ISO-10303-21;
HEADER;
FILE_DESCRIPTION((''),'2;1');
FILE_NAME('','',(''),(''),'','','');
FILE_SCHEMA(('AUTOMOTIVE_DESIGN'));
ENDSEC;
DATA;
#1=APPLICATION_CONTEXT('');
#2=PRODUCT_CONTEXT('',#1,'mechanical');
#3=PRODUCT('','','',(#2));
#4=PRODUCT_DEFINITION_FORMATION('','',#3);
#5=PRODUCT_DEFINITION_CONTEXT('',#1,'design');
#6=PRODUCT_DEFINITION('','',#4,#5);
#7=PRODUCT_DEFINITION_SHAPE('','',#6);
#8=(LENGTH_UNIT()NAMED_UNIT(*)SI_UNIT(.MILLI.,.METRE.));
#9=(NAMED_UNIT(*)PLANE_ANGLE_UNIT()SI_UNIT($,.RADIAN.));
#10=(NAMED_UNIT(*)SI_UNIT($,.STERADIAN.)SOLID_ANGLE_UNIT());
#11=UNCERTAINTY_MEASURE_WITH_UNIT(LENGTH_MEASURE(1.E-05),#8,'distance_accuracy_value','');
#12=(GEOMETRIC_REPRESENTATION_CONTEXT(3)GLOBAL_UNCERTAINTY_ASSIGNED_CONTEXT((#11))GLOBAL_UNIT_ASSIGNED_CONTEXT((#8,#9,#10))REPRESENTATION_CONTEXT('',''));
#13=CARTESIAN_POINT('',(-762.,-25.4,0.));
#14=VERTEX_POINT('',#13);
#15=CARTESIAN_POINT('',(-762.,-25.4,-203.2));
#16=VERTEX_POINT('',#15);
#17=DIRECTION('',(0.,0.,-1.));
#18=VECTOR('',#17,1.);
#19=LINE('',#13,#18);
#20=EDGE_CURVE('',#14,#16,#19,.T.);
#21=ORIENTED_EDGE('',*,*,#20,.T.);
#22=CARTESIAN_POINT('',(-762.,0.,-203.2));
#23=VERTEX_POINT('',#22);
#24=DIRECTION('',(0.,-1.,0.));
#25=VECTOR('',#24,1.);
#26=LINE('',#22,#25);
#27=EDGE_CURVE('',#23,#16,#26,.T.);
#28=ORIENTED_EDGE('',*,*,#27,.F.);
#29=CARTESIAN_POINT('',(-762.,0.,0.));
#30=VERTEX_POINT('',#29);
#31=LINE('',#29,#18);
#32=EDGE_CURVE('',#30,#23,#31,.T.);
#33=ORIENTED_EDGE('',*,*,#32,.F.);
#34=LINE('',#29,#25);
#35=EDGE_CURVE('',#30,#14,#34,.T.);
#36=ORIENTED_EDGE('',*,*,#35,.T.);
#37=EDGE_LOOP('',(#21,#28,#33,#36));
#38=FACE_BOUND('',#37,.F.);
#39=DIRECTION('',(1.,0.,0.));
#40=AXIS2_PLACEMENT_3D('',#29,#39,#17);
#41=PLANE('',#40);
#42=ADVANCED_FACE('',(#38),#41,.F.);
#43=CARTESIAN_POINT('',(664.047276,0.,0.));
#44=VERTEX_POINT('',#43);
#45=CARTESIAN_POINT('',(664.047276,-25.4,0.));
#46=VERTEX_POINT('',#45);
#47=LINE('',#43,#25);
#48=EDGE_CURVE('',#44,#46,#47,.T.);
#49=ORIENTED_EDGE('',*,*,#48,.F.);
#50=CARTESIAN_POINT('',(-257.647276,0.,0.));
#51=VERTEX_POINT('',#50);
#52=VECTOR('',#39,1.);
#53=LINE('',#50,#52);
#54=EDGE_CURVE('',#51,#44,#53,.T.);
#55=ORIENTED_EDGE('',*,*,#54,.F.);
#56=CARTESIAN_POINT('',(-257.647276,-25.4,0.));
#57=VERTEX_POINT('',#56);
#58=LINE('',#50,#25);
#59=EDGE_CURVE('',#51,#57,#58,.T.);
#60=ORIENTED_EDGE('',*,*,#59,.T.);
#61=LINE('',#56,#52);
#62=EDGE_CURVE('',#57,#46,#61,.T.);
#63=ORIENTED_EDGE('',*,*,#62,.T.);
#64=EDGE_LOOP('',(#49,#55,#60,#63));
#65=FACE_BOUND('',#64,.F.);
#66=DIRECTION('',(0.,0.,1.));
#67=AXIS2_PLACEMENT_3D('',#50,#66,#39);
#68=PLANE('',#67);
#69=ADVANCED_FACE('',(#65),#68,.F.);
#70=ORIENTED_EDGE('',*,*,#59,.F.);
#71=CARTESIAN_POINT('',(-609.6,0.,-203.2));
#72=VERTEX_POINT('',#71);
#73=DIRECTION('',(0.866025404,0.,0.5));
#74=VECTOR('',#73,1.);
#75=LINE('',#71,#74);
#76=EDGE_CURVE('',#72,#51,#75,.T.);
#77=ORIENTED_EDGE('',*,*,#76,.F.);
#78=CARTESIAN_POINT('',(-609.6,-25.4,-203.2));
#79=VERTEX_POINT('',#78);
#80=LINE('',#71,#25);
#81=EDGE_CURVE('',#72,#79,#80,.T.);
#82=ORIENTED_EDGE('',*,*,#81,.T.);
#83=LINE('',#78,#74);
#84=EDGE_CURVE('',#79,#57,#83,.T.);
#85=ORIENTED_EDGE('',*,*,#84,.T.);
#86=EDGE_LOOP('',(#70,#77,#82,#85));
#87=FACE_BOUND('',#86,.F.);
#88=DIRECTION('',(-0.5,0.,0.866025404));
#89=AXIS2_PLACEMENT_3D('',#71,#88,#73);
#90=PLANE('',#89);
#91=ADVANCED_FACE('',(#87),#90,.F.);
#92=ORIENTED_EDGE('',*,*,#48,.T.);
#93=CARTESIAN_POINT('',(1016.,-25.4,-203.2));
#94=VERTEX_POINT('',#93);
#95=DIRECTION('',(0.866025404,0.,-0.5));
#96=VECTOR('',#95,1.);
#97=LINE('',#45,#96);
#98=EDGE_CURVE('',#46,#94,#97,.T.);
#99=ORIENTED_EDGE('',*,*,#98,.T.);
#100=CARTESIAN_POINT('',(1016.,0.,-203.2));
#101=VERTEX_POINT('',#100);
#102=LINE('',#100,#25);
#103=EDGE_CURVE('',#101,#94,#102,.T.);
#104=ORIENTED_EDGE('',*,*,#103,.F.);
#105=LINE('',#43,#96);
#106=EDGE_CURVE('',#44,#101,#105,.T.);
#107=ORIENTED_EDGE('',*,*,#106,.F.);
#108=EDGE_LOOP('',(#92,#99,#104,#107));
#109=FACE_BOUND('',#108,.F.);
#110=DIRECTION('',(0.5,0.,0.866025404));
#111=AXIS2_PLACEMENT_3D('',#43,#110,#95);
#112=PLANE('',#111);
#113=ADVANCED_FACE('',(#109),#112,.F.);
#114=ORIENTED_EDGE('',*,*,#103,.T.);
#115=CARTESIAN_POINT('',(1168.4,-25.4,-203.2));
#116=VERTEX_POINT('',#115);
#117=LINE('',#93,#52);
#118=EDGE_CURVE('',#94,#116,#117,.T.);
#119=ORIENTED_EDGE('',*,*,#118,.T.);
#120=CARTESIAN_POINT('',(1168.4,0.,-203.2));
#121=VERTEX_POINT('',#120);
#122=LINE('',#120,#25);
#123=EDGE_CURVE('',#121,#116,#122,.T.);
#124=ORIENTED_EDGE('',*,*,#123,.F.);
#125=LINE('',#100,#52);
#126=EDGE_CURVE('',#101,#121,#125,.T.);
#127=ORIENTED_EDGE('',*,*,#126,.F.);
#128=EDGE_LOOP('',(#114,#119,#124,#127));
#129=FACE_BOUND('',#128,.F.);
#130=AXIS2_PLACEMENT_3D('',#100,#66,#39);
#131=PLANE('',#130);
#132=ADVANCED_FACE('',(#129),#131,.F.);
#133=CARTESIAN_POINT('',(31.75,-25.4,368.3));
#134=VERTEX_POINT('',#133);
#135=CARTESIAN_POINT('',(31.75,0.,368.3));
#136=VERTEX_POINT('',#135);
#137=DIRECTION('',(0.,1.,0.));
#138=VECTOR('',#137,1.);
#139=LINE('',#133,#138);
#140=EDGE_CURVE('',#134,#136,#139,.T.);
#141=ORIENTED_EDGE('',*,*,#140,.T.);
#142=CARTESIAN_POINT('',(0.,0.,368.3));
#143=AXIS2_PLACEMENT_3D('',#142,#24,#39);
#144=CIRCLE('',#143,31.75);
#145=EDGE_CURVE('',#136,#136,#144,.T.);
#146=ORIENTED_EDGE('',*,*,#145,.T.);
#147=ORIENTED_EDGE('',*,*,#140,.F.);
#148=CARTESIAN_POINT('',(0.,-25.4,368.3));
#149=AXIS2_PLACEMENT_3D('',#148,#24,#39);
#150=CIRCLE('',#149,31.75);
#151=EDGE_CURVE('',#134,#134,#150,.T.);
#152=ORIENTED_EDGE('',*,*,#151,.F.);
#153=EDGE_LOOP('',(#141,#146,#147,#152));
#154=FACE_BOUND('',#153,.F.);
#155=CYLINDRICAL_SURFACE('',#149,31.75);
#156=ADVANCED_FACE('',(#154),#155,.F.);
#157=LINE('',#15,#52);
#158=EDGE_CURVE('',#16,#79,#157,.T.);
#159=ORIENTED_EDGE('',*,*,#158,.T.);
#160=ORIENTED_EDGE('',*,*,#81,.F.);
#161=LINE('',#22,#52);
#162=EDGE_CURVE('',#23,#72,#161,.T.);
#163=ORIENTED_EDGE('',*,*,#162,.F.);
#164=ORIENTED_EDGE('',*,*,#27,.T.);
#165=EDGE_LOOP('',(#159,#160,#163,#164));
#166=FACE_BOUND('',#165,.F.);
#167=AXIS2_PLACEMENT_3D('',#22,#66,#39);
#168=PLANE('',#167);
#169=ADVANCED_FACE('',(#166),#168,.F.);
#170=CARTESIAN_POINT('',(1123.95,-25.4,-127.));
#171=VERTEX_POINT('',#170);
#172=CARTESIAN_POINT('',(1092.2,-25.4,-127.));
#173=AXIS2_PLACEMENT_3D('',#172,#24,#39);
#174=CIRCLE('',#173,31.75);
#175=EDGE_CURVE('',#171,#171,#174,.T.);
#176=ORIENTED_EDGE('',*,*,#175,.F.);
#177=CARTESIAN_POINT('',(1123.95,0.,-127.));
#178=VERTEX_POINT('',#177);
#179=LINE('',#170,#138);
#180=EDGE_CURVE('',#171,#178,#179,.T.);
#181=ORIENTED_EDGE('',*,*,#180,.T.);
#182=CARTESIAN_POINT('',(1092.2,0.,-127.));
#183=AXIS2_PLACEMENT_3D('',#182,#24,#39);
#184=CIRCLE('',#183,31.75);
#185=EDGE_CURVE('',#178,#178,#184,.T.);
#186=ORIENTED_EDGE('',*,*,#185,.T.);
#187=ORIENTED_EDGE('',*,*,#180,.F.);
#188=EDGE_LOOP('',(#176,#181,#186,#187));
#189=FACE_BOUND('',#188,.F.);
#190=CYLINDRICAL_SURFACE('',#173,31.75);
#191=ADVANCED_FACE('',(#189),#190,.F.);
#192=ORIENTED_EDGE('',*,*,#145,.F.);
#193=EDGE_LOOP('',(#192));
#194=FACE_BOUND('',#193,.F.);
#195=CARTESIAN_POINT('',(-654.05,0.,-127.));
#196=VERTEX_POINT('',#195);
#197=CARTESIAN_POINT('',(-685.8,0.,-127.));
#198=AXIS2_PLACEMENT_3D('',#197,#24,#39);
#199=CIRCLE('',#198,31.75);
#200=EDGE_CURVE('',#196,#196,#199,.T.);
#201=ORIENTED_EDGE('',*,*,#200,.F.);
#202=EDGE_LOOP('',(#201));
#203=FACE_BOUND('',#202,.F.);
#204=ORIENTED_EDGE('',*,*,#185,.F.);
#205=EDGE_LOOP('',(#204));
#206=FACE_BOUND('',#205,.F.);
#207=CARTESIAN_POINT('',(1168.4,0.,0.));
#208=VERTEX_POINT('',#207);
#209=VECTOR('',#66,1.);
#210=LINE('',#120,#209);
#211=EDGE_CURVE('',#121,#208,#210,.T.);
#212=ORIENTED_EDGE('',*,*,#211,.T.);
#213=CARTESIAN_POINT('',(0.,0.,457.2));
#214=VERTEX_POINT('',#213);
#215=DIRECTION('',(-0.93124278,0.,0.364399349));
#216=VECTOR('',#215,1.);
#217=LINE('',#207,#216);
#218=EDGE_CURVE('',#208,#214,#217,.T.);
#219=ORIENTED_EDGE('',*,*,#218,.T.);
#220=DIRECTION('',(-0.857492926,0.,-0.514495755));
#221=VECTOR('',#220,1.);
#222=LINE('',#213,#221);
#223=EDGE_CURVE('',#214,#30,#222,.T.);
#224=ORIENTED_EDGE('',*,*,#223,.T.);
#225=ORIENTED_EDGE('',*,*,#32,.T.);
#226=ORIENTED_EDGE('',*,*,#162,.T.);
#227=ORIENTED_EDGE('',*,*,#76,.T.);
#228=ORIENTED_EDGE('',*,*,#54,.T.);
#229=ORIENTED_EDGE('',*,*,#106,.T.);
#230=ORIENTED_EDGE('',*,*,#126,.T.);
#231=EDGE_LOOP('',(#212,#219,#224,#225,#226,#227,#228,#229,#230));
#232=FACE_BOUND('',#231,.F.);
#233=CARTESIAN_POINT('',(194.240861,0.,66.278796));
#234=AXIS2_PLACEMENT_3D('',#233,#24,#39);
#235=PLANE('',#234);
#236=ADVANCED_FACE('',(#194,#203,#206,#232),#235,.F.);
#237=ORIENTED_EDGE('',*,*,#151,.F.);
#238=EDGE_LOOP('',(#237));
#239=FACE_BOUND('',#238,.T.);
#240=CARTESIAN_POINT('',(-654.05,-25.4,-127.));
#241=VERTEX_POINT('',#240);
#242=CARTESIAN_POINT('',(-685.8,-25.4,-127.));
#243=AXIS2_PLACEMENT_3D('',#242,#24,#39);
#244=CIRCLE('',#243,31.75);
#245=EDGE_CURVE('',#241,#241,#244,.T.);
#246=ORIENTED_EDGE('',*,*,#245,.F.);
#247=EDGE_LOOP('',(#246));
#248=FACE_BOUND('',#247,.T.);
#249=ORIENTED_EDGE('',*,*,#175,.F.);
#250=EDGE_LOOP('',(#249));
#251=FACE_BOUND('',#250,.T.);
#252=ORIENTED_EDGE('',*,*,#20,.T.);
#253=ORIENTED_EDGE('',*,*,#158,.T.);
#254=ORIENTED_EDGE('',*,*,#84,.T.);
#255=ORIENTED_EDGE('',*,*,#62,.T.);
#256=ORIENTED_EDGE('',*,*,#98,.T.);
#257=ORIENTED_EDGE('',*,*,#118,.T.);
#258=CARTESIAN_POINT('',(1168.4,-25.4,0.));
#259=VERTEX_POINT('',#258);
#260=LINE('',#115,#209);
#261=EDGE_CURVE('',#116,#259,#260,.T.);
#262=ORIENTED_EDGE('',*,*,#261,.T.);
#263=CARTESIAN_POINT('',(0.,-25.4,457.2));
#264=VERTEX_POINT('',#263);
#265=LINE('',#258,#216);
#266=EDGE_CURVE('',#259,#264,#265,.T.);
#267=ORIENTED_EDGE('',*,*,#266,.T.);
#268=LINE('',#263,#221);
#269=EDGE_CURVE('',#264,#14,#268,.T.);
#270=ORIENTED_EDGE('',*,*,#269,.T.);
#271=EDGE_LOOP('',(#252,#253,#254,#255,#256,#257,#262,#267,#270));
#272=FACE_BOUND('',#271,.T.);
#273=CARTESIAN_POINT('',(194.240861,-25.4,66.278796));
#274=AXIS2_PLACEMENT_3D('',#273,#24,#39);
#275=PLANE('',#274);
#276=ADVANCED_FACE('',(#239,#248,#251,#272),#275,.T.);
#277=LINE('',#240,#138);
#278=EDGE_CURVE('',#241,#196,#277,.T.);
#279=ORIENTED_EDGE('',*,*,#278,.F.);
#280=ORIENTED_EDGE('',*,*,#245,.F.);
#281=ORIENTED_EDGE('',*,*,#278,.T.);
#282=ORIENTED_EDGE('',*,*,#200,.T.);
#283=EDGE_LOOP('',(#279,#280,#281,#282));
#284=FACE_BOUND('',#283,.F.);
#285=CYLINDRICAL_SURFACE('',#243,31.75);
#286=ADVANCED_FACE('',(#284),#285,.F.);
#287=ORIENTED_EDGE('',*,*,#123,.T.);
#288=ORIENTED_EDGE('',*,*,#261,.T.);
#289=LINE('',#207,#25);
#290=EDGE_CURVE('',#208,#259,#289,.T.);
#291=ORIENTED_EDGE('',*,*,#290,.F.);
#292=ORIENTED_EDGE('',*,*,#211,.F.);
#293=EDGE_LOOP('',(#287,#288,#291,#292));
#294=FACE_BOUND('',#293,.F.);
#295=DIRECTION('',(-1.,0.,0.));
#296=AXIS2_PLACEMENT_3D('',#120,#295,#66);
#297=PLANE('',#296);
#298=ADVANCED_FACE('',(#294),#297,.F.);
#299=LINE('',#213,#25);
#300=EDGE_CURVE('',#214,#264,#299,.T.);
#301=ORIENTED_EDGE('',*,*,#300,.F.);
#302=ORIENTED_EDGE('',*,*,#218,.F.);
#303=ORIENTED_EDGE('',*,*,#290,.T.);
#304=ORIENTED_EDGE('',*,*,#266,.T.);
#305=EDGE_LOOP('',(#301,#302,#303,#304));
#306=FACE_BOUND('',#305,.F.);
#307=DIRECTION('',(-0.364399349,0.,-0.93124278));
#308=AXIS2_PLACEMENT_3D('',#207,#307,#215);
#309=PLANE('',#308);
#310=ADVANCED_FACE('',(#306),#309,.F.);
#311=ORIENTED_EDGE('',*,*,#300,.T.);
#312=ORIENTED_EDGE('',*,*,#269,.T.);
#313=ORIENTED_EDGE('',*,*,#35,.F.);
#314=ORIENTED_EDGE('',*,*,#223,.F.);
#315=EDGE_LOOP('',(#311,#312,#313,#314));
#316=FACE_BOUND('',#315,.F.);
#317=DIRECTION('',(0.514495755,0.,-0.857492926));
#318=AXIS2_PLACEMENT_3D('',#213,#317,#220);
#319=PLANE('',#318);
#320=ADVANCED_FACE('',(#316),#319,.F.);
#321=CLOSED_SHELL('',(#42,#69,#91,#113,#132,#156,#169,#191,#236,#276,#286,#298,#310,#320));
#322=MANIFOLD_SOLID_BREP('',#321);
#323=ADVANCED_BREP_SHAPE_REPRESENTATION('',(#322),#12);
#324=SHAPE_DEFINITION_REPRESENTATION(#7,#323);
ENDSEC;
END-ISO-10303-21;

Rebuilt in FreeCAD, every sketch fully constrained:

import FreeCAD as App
import Part
import Sketcher

V = App.Vector
Q = App.Units.Quantity


def add_polygon(sketch, points):
    """Adds a closed chain of lines whose ends are joined by coincident constraints."""
    first, n = sketch.GeometryCount, len(points)
    for a, b in zip(points, points[1:] + points[:1]):
        sketch.addGeometry(Part.LineSegment(App.Vector(*a, 0), App.Vector(*b, 0)), False)
    for i in range(n):
        sketch.addConstraint(Sketcher.Constraint("Coincident", first + i, 2, first + (i + 1) % n, 1))

doc = App.newDocument("Part")
body = doc.addObject("PartDesign::Body", "Body")

sketch1 = body.newObject("Sketcher::SketchObject", "Sketch")
sketch1.AttachmentSupport = (doc.getObject("XZ_Plane"), [""])
sketch1.MapMode = "FlatFace"
add_polygon(sketch1, [(0, 457), (-762, 0), (-762, -203), (-610, -203), (-258, 0), (664, 0), (1016, -203), (1168, -203), (1168, 0)])
sketch1.addConstraint(Sketcher.Constraint("Vertical", 1))
sketch1.addConstraint(Sketcher.Constraint("Horizontal", 2))
sketch1.addConstraint(Sketcher.Constraint("Horizontal", 4))
sketch1.addConstraint(Sketcher.Constraint("Horizontal", 6))
sketch1.addConstraint(Sketcher.Constraint("Vertical", 7))
sketch1.addConstraint(Sketcher.Constraint("PointOnObject", 0, 2, -1))
sketch1.addConstraint(Sketcher.Constraint("PointOnObject", 3, 2, -1))
sketch1.addConstraint(Sketcher.Constraint("PointOnObject", 7, 2, -1))
sketch1.addConstraint(Sketcher.Constraint("PointOnObject", 8, 2, -2))
sketch1.addConstraint(Sketcher.Constraint("Horizontal", 2, 2, 5, 2))
sketch1.addConstraint(Sketcher.Constraint("Equal", 2, 6))
sketch1.addConstraint(Sketcher.Constraint("Equal", 3, 5))
sketch1.addConstraint(Sketcher.Constraint("DistanceX", 2, 1, 2, 2, Q("6 in")))
sketch1.addConstraint(Sketcher.Constraint("DistanceY", 1, 2, 1, 1, Q("8 in")))
sketch1.addConstraint(Sketcher.Constraint("Distance", 3, Q("16 in")))
sketch1.addConstraint(Sketcher.Constraint("DistanceX", 0, 2, -1, 1, Q("30 in")))
sketch1.addConstraint(Sketcher.Constraint("DistanceX", -1, 1, 5, 2, Q("40 in")))
sketch1.addConstraint(Sketcher.Constraint("DistanceY", -1, 1, 8, 2, Q("18 in")))
pad1 = body.newObject("PartDesign::Pad", "Pad")
pad1.Profile = sketch1
pad1.Length = Q("1 in")

sketch2 = body.newObject("Sketcher::SketchObject", "Sketch001")
sketch2.AttachmentSupport = (doc.getObject("XZ_Plane"), [""])
sketch2.MapMode = "FlatFace"
sketch2.AttachmentOffset = App.Placement(V(0, 0, 1 * 25.4), App.Rotation())
sketch2.addGeometry(Part.Circle(V(0, 368, 0), V(0, 0, 1), 32), False)
sketch2.addGeometry(Part.Circle(V(-686, -127, 0), V(0, 0, 1), 32), False)
sketch2.addGeometry(Part.Circle(V(1092, -127, 0), V(0, 0, 1), 32), False)
sketch2.addConstraint(Sketcher.Constraint("Equal", 0, 1))
sketch2.addConstraint(Sketcher.Constraint("Equal", 1, 2))
sketch2.addConstraint(Sketcher.Constraint("PointOnObject", 0, 3, -2))
sketch2.addConstraint(Sketcher.Constraint("Horizontal", 1, 3, 2, 3))
sketch2.addConstraint(Sketcher.Constraint("Diameter", 0, Q("2.5 in")))
sketch2.addConstraint(Sketcher.Constraint("DistanceX", 1, 3, -1, 1, Q("27 in")))
sketch2.addConstraint(Sketcher.Constraint("DistanceY", 1, 3, -1, 1, Q("5 in")))
sketch2.addConstraint(Sketcher.Constraint("DistanceX", -1, 1, 2, 3, Q("43 in")))
sketch2.addConstraint(Sketcher.Constraint("DistanceY", -1, 1, 0, 3, Q("14.5 in")))
pocket1 = body.newObject("PartDesign::Pocket", "Pocket")
pocket1.Profile = sketch2
pocket1.Length = Q("2 in")

doc.recompute()
